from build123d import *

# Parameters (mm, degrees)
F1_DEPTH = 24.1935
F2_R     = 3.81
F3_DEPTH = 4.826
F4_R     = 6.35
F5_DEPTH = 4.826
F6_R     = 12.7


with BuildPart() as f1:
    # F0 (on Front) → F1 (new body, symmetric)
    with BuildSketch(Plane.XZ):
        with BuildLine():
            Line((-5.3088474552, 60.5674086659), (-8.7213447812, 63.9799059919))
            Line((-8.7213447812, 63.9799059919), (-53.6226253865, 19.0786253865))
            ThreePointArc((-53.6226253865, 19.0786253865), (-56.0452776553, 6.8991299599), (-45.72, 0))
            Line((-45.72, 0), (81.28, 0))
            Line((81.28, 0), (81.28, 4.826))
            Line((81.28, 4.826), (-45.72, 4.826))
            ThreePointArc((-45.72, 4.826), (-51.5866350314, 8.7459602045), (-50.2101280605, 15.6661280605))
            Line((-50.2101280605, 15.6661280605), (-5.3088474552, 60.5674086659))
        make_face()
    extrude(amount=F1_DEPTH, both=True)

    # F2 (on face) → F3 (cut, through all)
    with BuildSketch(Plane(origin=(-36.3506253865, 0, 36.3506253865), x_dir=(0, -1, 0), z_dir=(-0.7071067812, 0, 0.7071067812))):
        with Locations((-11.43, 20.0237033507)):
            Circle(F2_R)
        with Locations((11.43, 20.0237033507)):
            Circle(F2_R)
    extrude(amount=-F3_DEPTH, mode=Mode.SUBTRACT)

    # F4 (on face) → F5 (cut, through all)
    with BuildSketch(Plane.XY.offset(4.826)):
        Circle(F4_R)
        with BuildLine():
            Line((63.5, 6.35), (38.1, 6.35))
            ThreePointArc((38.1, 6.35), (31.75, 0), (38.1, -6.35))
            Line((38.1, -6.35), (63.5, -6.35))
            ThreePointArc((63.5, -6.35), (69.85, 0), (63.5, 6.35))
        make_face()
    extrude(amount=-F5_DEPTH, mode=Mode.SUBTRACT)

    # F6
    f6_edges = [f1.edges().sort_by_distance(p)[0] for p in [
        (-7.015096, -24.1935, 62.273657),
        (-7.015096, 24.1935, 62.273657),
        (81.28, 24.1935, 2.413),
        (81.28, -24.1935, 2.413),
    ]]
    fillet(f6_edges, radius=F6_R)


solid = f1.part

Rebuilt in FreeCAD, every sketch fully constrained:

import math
import FreeCAD as App
import Part
import Sketcher
Q = App.Units.Quantity


def edges_at(feature, points):
    """Names of the edges that pass closest to the given points."""
    edges = feature.Shape.Edges
    near = lambda p: min(range(len(edges)), key=lambda i: edges[i].distToShape(Part.Vertex(*p))[0])
    return sorted({f"Edge{near(p) + 1}" for p in points})

doc = App.newDocument("Part")
body = doc.addObject("PartDesign::Body", "Body")

# Sketch on XZ plane
sketch1 = body.newObject("Sketcher::SketchObject", "Sketch")
sketch1.AttachmentSupport = (doc.getObject("XZ_Plane"), [""])
sketch1.MapMode = "FlatFace"
sketch1.addGeometry([
    Part.LineSegment(App.Vector(-5.308847, 60.567409, 0), App.Vector(-8.721345, 63.979906, 0)),  # 0
    Part.LineSegment(App.Vector(-8.721345, 63.979906, 0), App.Vector(-53.622625, 19.078625, 0)),  # 1
    Part.ArcOfCircle(Part.Circle(App.Vector(-45.72, 11.176, 0), App.Vector(0, 0, 1), 11.176), math.radians(135), math.radians(270)),  # 2
    Part.LineSegment(App.Vector(-45.72, 0, 0), App.Vector(81.28, 0, 0)),  # 3
    Part.LineSegment(App.Vector(81.28, 0, 0), App.Vector(81.28, 4.826, 0)),  # 4
    Part.LineSegment(App.Vector(81.28, 4.826, 0), App.Vector(-45.72, 4.826, 0)),  # 5
    Part.ArcOfCircle(Part.Circle(App.Vector(-45.72, 11.176, 0), App.Vector(0, 0, 1), 6.35), math.radians(135), math.radians(270)),  # 6
    Part.LineSegment(App.Vector(-50.210128, 15.666128, 0), App.Vector(-5.308847, 60.567409, 0)),  # 7
], False)
sketch1.addConstraint([
    Sketcher.Constraint("Coincident", 0, 2, 1, 1),
    Sketcher.Constraint("Tangent", 1, 2, 2, 1),
    Sketcher.Constraint("Tangent", 2, 2, 3, 1),
    Sketcher.Constraint("Coincident", 3, 2, 4, 1),
    Sketcher.Constraint("Coincident", 4, 2, 5, 1),
    Sketcher.Constraint("Tangent", 5, 2, 6, 2),
    Sketcher.Constraint("Tangent", 6, 1, 7, 1),
    Sketcher.Constraint("Coincident", 7, 2, 0, 1),
    Sketcher.Constraint("Horizontal", 3),
    Sketcher.Constraint("Vertical", 4),
    Sketcher.Constraint("Horizontal", 5),
    Sketcher.Constraint("Coincident", 6, 3, 2, 3),
    Sketcher.Constraint("PointOnObject", 2, 2, -1),
    Sketcher.Constraint("Perpendicular", 0, 1),
    Sketcher.Constraint("Parallel", 1, 7),
    Sketcher.Constraint("DistanceX", 3, 1, 3, 2, Q("5 in")),
    Sketcher.Constraint("Radius", 2, Q("0.44 in")),
    Sketcher.Constraint("Radius", 6, Q("0.25 in")),
    Sketcher.Constraint("Angle", 0, Q("135 deg")),
    Sketcher.Constraint("Distance", 1, Q("2.5 in")),
    Sketcher.Constraint("DistanceX", 2, 3, -1, 1, Q("1.8 in")),
])
pad1 = body.newObject("PartDesign::Pad", "Pad")
pad1.Profile = sketch1
pad1.Length = Q("1.905 in")
pad1.Midplane = True

# Sketch on an angled plane
sketch2 = body.newObject("Sketcher::SketchObject", "Sketch001")
sketch2.Placement = App.Placement(App.Vector(-36.350625, 0, 36.350625), App.Rotation(App.Vector(0, -1, 0), App.Vector(0.707106781, 0, 0.707106781), App.Vector(-0.707106781, 0, 0.707106781), "ZXY"))
sketch2.addGeometry([
    Part.Circle(App.Vector(-11.43, 20.023703, 0), App.Vector(0, 0, 1), 3.81),
    Part.Circle(App.Vector(11.43, 20.023703, 0), App.Vector(0, 0, 1), 3.81),
], False)
sketch2.addConstraint([
    Sketcher.Constraint("Equal", 0, 1),
    Sketcher.Constraint("Symmetric", 0, 3, 1, 3, -2),
    Sketcher.Constraint("Diameter", 0, Q("0.3 in")),
    Sketcher.Constraint("DistanceX", 0, 3, 1, 3, Q("0.9 in")),
    Sketcher.Constraint("DistanceY", -1, 1, 0, 3, 20.023703),
])
pocket1 = body.newObject("PartDesign::Pocket", "Pocket")
pocket1.Profile = sketch2
pocket1.Length = Q("0.19 in")

# Sketch on XY plane
sketch3 = body.newObject("Sketcher::SketchObject", "Sketch002")
sketch3.AttachmentSupport = (doc.getObject("XY_Plane"), [""])
sketch3.MapMode = "FlatFace"
sketch3.AttachmentOffset = App.Placement(App.Vector(0, 0, 0.19 * 25.4), App.Rotation())
sketch3.addGeometry([
    Part.Circle(App.Vector(0, 0, 0), App.Vector(0, 0, 1), 6.35),  # 0
    Part.LineSegment(App.Vector(63.5, 6.35, 0), App.Vector(38.1, 6.35, 0)),  # 1
    Part.ArcOfCircle(Part.Circle(App.Vector(38.1, 0, 0), App.Vector(0, 0, 1), 6.35), math.radians(90), math.radians(270)),  # 2
    Part.LineSegment(App.Vector(38.1, -6.35, 0), App.Vector(63.5, -6.35, 0)),  # 3
    Part.ArcOfCircle(Part.Circle(App.Vector(63.5, 0, 0), App.Vector(0, 0, 1), 6.35), math.radians(-90), math.radians(90)),  # 4
], False)
sketch3.addConstraint([
    Sketcher.Constraint("Tangent", 1, 2, 2, 1),
    Sketcher.Constraint("Tangent", 2, 2, 3, 1),
    Sketcher.Constraint("Tangent", 3, 2, 4, 1),
    Sketcher.Constraint("Tangent", 4, 2, 1, 1),
    Sketcher.Constraint("Horizontal", 1),
    Sketcher.Constraint("Horizontal", 3),
    Sketcher.Constraint("Coincident", 0, 3, -1, 1),
    Sketcher.Constraint("Equal", 0, 2),
    Sketcher.Constraint("PointOnObject", 2, 3, -1),
    Sketcher.Constraint("Diameter", 0, Q("0.5 in")),
    Sketcher.Constraint("DistanceX", 1, 2, 1, 1, Q("1 in")),
    Sketcher.Constraint("DistanceX", -1, 1, 2, 3, Q("1.5 in")),
])
pocket2 = body.newObject("PartDesign::Pocket", "Pocket001")
pocket2.Profile = sketch3
pocket2.Type = "ThroughAll"
doc.recompute()

fillet = body.newObject("PartDesign::Fillet", "Fillet")
fillet.Base = (pocket2, edges_at(pocket2, [
    (-7.015, -24.194, 62.274),
    (-7.015, 24.194, 62.274),
    (81.28, 24.194, 2.413),
    (81.28, -24.194, 2.413),
]))
fillet.Radius = Q("0.5 in")

doc.recompute()
